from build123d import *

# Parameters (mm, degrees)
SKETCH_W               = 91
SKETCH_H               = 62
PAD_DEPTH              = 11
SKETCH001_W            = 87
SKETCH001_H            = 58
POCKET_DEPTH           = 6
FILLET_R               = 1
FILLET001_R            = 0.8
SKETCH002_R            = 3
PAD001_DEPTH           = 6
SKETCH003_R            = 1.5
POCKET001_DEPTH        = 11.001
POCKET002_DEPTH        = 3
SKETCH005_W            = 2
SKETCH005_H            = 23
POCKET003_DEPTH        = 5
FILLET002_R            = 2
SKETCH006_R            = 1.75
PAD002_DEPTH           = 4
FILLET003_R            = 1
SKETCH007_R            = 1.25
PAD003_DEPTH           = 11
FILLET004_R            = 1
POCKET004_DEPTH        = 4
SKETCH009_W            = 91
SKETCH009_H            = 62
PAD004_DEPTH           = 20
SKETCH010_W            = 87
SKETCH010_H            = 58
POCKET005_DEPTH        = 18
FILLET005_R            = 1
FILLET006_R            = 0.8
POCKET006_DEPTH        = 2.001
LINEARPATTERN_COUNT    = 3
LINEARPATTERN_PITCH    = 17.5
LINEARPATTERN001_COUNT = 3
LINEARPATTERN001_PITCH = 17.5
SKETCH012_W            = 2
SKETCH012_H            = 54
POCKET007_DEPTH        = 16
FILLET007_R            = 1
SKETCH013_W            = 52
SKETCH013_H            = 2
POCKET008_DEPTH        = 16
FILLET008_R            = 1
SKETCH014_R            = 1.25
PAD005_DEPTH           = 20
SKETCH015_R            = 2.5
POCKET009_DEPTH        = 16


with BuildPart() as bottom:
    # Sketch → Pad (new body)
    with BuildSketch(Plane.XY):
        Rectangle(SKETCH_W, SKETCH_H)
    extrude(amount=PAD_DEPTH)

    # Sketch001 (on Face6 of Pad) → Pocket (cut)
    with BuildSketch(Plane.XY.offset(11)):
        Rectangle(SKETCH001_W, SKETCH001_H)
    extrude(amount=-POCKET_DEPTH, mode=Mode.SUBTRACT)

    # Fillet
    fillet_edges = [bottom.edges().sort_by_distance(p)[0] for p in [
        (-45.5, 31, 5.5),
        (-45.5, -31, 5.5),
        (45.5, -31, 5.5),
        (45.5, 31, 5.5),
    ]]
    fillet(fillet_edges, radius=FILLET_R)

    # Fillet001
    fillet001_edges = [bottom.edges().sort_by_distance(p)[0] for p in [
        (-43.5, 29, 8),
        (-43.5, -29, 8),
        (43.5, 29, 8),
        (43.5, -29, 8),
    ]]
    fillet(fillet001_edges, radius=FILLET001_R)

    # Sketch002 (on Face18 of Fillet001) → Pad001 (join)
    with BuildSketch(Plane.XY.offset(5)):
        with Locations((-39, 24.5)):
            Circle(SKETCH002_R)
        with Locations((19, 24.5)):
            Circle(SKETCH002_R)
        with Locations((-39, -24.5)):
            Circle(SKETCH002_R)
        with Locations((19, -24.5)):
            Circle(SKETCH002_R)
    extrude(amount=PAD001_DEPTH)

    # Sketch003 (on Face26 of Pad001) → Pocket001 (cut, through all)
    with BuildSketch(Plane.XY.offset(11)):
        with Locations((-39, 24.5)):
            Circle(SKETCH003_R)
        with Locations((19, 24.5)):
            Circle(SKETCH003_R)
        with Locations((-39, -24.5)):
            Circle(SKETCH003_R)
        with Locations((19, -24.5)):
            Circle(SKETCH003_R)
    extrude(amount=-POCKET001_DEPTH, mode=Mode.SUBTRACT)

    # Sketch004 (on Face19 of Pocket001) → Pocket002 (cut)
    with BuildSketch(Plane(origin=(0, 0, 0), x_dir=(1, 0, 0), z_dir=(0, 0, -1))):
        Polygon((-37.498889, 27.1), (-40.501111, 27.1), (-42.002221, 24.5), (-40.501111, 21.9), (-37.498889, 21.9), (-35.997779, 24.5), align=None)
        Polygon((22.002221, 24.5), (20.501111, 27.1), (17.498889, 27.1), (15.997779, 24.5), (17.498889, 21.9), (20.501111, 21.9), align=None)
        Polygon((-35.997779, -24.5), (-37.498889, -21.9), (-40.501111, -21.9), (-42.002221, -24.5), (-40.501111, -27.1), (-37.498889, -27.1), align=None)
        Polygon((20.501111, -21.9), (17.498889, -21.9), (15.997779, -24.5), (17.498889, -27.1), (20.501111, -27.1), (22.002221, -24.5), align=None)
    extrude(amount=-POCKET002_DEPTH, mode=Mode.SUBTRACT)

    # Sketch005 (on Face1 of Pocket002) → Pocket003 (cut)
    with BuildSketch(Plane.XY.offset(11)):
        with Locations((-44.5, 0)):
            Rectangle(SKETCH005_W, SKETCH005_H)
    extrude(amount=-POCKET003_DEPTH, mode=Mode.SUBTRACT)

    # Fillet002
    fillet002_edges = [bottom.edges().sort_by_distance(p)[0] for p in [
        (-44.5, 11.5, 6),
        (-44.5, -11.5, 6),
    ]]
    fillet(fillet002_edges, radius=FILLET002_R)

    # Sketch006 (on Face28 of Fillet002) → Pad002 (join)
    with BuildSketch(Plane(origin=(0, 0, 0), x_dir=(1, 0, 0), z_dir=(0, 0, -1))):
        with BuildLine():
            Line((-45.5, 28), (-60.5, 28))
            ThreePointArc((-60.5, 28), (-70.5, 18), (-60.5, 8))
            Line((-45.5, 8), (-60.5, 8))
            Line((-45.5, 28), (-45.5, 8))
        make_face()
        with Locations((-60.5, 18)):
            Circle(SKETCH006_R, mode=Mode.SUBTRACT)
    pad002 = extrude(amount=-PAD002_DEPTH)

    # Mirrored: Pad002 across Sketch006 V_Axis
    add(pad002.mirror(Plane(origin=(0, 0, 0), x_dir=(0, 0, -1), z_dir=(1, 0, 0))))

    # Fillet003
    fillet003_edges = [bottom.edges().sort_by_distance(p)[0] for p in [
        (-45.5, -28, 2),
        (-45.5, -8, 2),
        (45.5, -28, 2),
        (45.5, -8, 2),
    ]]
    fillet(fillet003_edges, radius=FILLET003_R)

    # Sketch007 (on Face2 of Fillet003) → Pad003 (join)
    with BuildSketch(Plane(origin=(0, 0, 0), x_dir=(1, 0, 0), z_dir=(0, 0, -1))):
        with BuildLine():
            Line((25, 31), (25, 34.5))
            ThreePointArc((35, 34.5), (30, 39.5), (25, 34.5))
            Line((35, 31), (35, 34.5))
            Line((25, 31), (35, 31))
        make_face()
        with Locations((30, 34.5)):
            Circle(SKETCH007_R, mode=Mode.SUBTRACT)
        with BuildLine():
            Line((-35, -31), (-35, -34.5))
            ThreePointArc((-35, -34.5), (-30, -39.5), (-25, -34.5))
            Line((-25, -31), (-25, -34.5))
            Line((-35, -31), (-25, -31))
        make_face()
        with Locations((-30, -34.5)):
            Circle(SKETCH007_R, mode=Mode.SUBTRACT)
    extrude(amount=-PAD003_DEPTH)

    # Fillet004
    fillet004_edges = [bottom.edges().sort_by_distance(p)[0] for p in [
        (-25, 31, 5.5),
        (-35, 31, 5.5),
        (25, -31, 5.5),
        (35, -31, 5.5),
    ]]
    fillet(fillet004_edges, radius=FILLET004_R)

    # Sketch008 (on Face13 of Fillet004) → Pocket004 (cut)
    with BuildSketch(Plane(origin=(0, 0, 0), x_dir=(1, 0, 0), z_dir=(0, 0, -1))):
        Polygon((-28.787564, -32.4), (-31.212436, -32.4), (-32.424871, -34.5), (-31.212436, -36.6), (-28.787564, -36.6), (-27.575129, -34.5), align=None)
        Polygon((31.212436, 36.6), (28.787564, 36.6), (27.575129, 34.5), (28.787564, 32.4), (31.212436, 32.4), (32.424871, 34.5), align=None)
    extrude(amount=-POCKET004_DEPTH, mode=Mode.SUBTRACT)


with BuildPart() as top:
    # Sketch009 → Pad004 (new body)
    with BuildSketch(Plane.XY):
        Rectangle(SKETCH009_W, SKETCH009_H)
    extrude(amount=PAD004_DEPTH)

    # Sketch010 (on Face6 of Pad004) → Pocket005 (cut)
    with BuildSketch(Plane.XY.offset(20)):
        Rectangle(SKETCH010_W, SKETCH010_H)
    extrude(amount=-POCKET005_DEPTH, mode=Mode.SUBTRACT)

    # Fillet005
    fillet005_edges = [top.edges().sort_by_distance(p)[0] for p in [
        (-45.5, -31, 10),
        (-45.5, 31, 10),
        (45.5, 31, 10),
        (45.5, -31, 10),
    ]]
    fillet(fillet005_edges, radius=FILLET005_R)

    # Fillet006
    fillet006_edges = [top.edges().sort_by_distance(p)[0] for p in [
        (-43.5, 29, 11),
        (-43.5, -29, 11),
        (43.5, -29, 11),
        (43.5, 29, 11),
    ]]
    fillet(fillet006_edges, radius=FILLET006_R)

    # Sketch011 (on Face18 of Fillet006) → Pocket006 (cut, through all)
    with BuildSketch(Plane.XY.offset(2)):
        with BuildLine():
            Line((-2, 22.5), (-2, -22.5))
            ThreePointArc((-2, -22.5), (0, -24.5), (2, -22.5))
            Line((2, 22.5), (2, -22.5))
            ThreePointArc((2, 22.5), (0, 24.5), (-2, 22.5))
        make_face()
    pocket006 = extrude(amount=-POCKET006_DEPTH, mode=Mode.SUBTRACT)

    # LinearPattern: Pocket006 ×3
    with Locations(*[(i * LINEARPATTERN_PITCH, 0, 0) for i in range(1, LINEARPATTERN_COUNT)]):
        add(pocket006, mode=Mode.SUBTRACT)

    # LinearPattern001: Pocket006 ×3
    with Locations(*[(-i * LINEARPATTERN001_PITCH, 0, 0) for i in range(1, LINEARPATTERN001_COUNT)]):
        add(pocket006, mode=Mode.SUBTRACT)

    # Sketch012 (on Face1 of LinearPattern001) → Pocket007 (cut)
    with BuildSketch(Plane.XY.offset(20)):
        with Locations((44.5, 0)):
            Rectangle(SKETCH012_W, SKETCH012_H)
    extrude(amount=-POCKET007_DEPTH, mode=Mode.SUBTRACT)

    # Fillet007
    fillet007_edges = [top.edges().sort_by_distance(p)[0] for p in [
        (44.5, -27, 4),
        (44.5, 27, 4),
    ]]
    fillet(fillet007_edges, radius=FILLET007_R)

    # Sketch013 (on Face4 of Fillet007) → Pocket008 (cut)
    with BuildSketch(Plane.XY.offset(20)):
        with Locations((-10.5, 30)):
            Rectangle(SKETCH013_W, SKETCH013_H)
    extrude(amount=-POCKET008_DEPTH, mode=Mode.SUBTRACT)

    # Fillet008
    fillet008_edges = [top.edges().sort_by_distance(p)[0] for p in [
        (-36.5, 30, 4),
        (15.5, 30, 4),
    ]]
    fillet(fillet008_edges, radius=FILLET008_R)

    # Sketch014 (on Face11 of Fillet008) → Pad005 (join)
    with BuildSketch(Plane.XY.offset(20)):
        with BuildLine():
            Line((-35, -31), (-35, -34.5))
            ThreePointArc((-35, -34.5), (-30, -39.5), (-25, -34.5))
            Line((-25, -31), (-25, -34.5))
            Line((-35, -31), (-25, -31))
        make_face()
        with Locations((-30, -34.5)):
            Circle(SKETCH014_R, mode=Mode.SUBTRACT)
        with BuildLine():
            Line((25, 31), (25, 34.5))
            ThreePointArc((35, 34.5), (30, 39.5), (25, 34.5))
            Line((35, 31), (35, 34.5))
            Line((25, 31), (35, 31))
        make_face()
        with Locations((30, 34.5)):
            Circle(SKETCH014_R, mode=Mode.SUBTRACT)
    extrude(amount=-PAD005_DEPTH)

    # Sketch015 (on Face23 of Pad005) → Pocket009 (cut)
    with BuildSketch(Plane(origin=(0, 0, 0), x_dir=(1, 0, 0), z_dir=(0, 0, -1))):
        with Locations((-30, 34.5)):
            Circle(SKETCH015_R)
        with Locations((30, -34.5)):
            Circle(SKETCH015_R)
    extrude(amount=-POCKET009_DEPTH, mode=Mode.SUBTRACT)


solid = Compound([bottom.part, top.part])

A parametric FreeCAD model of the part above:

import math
import FreeCAD as App
import Part
import Sketcher
Q = App.Units.Quantity


def edges_at(feature, points):
    """Names of the edges that pass closest to the given points."""
    edges = feature.Shape.Edges
    near = lambda p: min(range(len(edges)), key=lambda i: edges[i].distToShape(Part.Vertex(*p))[0])
    return sorted({f"Edge{near(p) + 1}" for p in points})


def add_polygon(sketch, points):
    """Adds a closed chain of lines whose ends are joined by coincident constraints."""
    first, n = sketch.GeometryCount, len(points)
    for a, b in zip(points, points[1:] + points[:1]):
        sketch.addGeometry(Part.LineSegment(App.Vector(*a, 0), App.Vector(*b, 0)), False)
    for i in range(n):
        sketch.addConstraint(Sketcher.Constraint("Coincident", first + i, 2, first + (i + 1) % n, 1))

doc = App.newDocument("Part")
body = doc.addObject("PartDesign::Body", "Body")

# Sketch on XY plane
sketch1 = doc.addObject("Sketcher::SketchObject", "Sketch")
body.addObject(sketch1)
sketch1.AttachmentSupport = (doc.XY_Plane, [""])
sketch1.MapMode = "FlatFace"
add_polygon(sketch1, [(-46, 31), (-46, -31), (46, -31), (46, 31)])  # lines 0-3
sketch1.addConstraint([
    Sketcher.Constraint("Vertical", 0),
    Sketcher.Constraint("Horizontal", 1),
    Sketcher.Constraint("Vertical", 2),
    Sketcher.Constraint("Horizontal", 3),
    Sketcher.Constraint("Symmetric", 0, 2, 2, 2, -1, 1),
    Sketcher.Constraint("DistanceX", 1, 1, 1, 2, 91.0),
    Sketcher.Constraint("DistanceY", 0, 2, 0, 1, 62.0),
])
pad1 = doc.addObject("PartDesign::Pad", "Pad")
body.addObject(pad1)
pad1.Profile = sketch1
pad1.Length = 11

# Sketch on XY plane
sketch2 = doc.addObject("Sketcher::SketchObject", "Sketch001")
body.addObject(sketch2)
sketch2.AttachmentSupport = (doc.XY_Plane, [""])
sketch2.MapMode = "FlatFace"
sketch2.AttachmentOffset = App.Placement(App.Vector(0, 0, 11), App.Rotation())
add_polygon(sketch2, [(-44, 29), (-44, -29), (44, -29), (44, 29)])  # lines 0-3
sketch2.addConstraint([
    Sketcher.Constraint("Vertical", 0),
    Sketcher.Constraint("Horizontal", 1),
    Sketcher.Constraint("Vertical", 2),
    Sketcher.Constraint("Horizontal", 3),
    Sketcher.Constraint("Symmetric", 0, 2, 2, 2, -1, 1),
    Sketcher.Constraint("DistanceX", 1, 1, 1, 2, 87.0),
    Sketcher.Constraint("DistanceY", 0, 2, 0, 1, 58.0),
])
pocket1 = doc.addObject("PartDesign::Pocket", "Pocket")
body.addObject(pocket1)
pocket1.Profile = sketch2
pocket1.Length = 6
doc.recompute()

fillet = doc.addObject("PartDesign::Fillet", "Fillet")
body.addObject(fillet)
fillet.Base = (pocket1, edges_at(pocket1, [
    (-45.5, 31, 5.5),
    (-45.5, -31, 5.5),
    (45.5, -31, 5.5),
    (45.5, 31, 5.5),
]))
fillet.Radius = 1
doc.recompute()

fillet2 = doc.addObject("PartDesign::Fillet", "Fillet001")
body.addObject(fillet2)
fillet2.Base = (fillet, edges_at(fillet, [
    (-43.5, 29, 8),
    (-43.5, -29, 8),
    (43.5, 29, 8),
    (43.5, -29, 8),
]))
fillet2.Radius = 0.8

# Sketch on XY plane
sketch3 = doc.addObject("Sketcher::SketchObject", "Sketch002")
body.addObject(sketch3)
sketch3.AttachmentSupport = (doc.XY_Plane, [""])
sketch3.MapMode = "FlatFace"
sketch3.AttachmentOffset = App.Placement(App.Vector(0, 0, 5), App.Rotation())
sketch3.addGeometry([
    Part.Circle(App.Vector(-39, 24.5, 0), App.Vector(0, 0, 1), 3),
    Part.Circle(App.Vector(19, 24.5, 0), App.Vector(0, 0, 1), 3),
    Part.Circle(App.Vector(-39, -24.5, 0), App.Vector(0, 0, 1), 3),
    Part.Circle(App.Vector(19, -24.5, 0), App.Vector(0, 0, 1), 3),
], False)
sketch3.addConstraint([
    Sketcher.Constraint("Equal", 0, 1),
    Sketcher.Constraint("Equal", 1, 2),
    Sketcher.Constraint("Equal", 2, 3),
    Sketcher.Constraint("Symmetric", 0, 3, 2, 3, -1),
    Sketcher.Constraint("Symmetric", 1, 3, 3, 3, -1),
    Sketcher.Constraint("Horizontal", 0, 3, 1, 3),
    Sketcher.Constraint("Diameter", 0, 6.0),
    Sketcher.Constraint("DistanceX", 0, 3, -1, 1, 39.0),
    Sketcher.Constraint("DistanceX", -1, 1, 1, 3, 19.0),
    Sketcher.Constraint("DistanceY", 2, 3, 0, 3, 49.0),
])
pad2 = doc.addObject("PartDesign::Pad", "Pad001")
body.addObject(pad2)
pad2.Profile = sketch3
pad2.Length = 6

# Sketch on XY plane
sketch4 = doc.addObject("Sketcher::SketchObject", "Sketch003")
body.addObject(sketch4)
sketch4.AttachmentSupport = (doc.XY_Plane, [""])
sketch4.MapMode = "FlatFace"
sketch4.AttachmentOffset = App.Placement(App.Vector(0, 0, 11), App.Rotation())
sketch4.addGeometry([
    Part.Circle(App.Vector(-39, 24.5, 0), App.Vector(0, 0, 1), 1.5),
    Part.Circle(App.Vector(19, 24.5, 0), App.Vector(0, 0, 1), 1.5),
    Part.Circle(App.Vector(-39, -24.5, 0), App.Vector(0, 0, 1), 1.5),
    Part.Circle(App.Vector(19, -24.5, 0), App.Vector(0, 0, 1), 1.5),
], False)
sketch4.addConstraint([
    Sketcher.Constraint("Equal", 0, 1),
    Sketcher.Constraint("Equal", 1, 2),
    Sketcher.Constraint("Equal", 2, 3),
    Sketcher.Constraint("Symmetric", 0, 3, 2, 3, -1),
    Sketcher.Constraint("Symmetric", 1, 3, 3, 3, -1),
    Sketcher.Constraint("Horizontal", 0, 3, 1, 3),
    Sketcher.Constraint("Diameter", 0, 3.0),
    Sketcher.Constraint("DistanceX", 0, 3, -1, 1, 39.0),
    Sketcher.Constraint("DistanceX", -1, 1, 1, 3, 19.0),
    Sketcher.Constraint("DistanceY", 2, 3, 0, 3, 49.0),
])
pocket2 = doc.addObject("PartDesign::Pocket", "Pocket001")
body.addObject(pocket2)
pocket2.Profile = sketch4
pocket2.Type = "ThroughAll"

# Sketch on XY plane
sketch5 = doc.addObject("Sketcher::SketchObject", "Sketch004")
body.addObject(sketch5)
sketch5.AttachmentSupport = (doc.XY_Plane, [""])
sketch5.MapMode = "FlatFace"
add_polygon(sketch5, [(-37.5, -27.1), (-40.5, -27.1), (-42, -24.5), (-40.5, -21.9), (-37.5, -21.9), (-36, -24.5)])  # lines 0-5
add_polygon(sketch5, [(22, -24.5), (20.5, -27.1), (17.5, -27.1), (16, -24.5), (17.5, -21.9), (20.5, -21.9)])  # lines 6-11
add_polygon(sketch5, [(-36, 24.5), (-37.5, 21.9), (-40.5, 21.9), (-42, 24.5), (-40.5, 27.1), (-37.5, 27.1)])  # lines 12-17
add_polygon(sketch5, [(20.5, 21.9), (17.5, 21.9), (16, 24.5), (17.5, 27.1), (20.5, 27.1), (22, 24.5)])  # lines 18-23
sketch5.addConstraint([
    Sketcher.Constraint("Horizontal", 0),
    Sketcher.Constraint("Horizontal", 3),
    Sketcher.Constraint("Horizontal", 7),
    Sketcher.Constraint("Horizontal", 10),
    Sketcher.Constraint("Horizontal", 13),
    Sketcher.Constraint("Horizontal", 16),
    Sketcher.Constraint("Horizontal", 18),
    Sketcher.Constraint("Horizontal", 21),
    Sketcher.Constraint("Symmetric", 3, 2, 12, 2, -1),
    Sketcher.Constraint("Symmetric", 1, 2, 14, 2, -1),
    Sketcher.Constraint("Symmetric", 0, 2, 15, 2, -1),
    Sketcher.Constraint("Symmetric", 4, 2, 17, 2, -1),
    Sketcher.Constraint("Symmetric", 9, 2, 18, 2, -1),
    Sketcher.Constraint("Symmetric", 8, 2, 19, 2, -1),
    Sketcher.Constraint("Symmetric", 7, 2, 20, 2, -1),
    Sketcher.Constraint("Symmetric", 11, 2, 22, 2, -1),
    Sketcher.Constraint("Parallel", 1, 4),
    Sketcher.Constraint("Parallel", 2, 5),
    Sketcher.Constraint("Parallel", 5, 6),
    Sketcher.Constraint("Parallel", 4, 8),
    Sketcher.Constraint("Parallel", 6, 9),
    Sketcher.Constraint("Parallel", 8, 11),
    Sketcher.Constraint("Parallel", 9, 12),
    Sketcher.Constraint("Parallel", 11, 14),
    Sketcher.Constraint("Parallel", 14, 17),
    Sketcher.Constraint("Parallel", 19, 22),
    Sketcher.Constraint("Parallel", 20, 23),
    Sketcher.Constraint("Horizontal", 1, 2, 4, 2),
    Sketcher.Constraint("Horizontal", 5, 2, 6, 2),
    Sketcher.Constraint("Horizontal", 4, 2, 8, 2),
    Sketcher.Constraint("Horizontal", 3, 2, 9, 2),
    Sketcher.Constraint("Horizontal", 8, 2, 11, 2),
    Sketcher.Constraint("Vertical", 0, 2, 2, 2),
    Sketcher.Constraint("Equal", 3, 7),
    Sketcher.Constraint("Angle", 1, Q("119.999988 deg")),
    Sketcher.Constraint("DistanceX", 5, 2, 6, 2, 58.0),
    Sketcher.Constraint("DistanceY", 5, 2, 12, 2, 49.0),
    Sketcher.Constraint("DistanceY", 0, 2, -1, 1, 27.1),
    Sketcher.Constraint("DistanceX", 0, 2, 0, 1, 3.002222),
    Sketcher.Constraint("DistanceX", 0, 2, -1, 1, 40.501111),
])
pocket3 = doc.addObject("PartDesign::Pocket", "Pocket002")
body.addObject(pocket3)
pocket3.Profile = sketch5
pocket3.Length = 3
pocket3.Reversed = True

# Sketch on XY plane
sketch6 = doc.addObject("Sketcher::SketchObject", "Sketch005")
body.addObject(sketch6)
sketch6.AttachmentSupport = (doc.XY_Plane, [""])
sketch6.MapMode = "FlatFace"
sketch6.AttachmentOffset = App.Placement(App.Vector(0, 0, 11), App.Rotation())
add_polygon(sketch6, [(-45.5, 11.5), (-45.5, -11.5), (-43.5, -11.5), (-43.5, 11.5)])  # lines 0-3
sketch6.addConstraint([
    Sketcher.Constraint("Vertical", 0),
    Sketcher.Constraint("Horizontal", 1),
    Sketcher.Constraint("Vertical", 2),
    Sketcher.Constraint("Horizontal", 3),
    Sketcher.Constraint("DistanceX", 1, 1, 1, 2, 2.0),
    Sketcher.Constraint("DistanceY", 0, 2, 0, 1, 23.0),
    Sketcher.Constraint("DistanceX", 0, 2, -1, 1, 45.5),
    Sketcher.Constraint("DistanceY", 0, 2, -1, 1, 11.5),
])
pocket4 = doc.addObject("PartDesign::Pocket", "Pocket003")
body.addObject(pocket4)
pocket4.Profile = sketch6
pocket4.Length = 5
doc.recompute()

fillet3 = doc.addObject("PartDesign::Fillet", "Fillet002")
body.addObject(fillet3)
fillet3.Base = (pocket4, edges_at(pocket4, [(-44.5, 11.5, 6), (-44.5, -11.5, 6)]))
fillet3.Radius = 2

# Sketch on XY plane
sketch7 = doc.addObject("Sketcher::SketchObject", "Sketch006")
body.addObject(sketch7)
sketch7.AttachmentSupport = (doc.XY_Plane, [""])
sketch7.MapMode = "FlatFace"
sketch7.addGeometry([
    Part.LineSegment(App.Vector(-45.5, -28, 0), App.Vector(-60.5, -28, 0)),  # 0
    Part.ArcOfCircle(Part.Circle(App.Vector(-60.5, -18, 0), App.Vector(0, 0, 1), 10), math.radians(90), math.radians(270)),  # 1
    Part.LineSegment(App.Vector(-60.5, -8, 0), App.Vector(-45.5, -8, 0)),  # 2
    Part.LineSegment(App.Vector(-45.5, -8, 0), App.Vector(-45.5, -28, 0)),  # 3
    Part.Circle(App.Vector(-60.5, -18, 0), App.Vector(0, 0, 1), 1.8),  # 4
], False)
sketch7.addConstraint([
    Sketcher.Constraint("Tangent", 0, 2, 1, 2),
    Sketcher.Constraint("Tangent", 1, 1, 2, 1),
    Sketcher.Constraint("Coincident", 2, 2, 3, 1),
    Sketcher.Constraint("Coincident", 3, 2, 0, 1),
    Sketcher.Constraint("Horizontal", 0),
    Sketcher.Constraint("Horizontal", 2),
    Sketcher.Constraint("Vertical", 3),
    Sketcher.Constraint("Coincident", 4, 3, 1, 3),
    Sketcher.Constraint("Radius", 1, 10.0),
    Sketcher.Constraint("Diameter", 4, 3.5),
    Sketcher.Constraint("DistanceX", 0, 2, 0, 1, 15.0),
    Sketcher.Constraint("DistanceY", 1, 3, -1, 1, 18.0),
    Sketcher.Constraint("DistanceX", 1, 3, -1, 1, 60.5),
])
pad3 = doc.addObject("PartDesign::Pad", "Pad002")
body.addObject(pad3)
pad3.Profile = sketch7
pad3.Length = 4
doc.recompute()

mirrored = doc.addObject("PartDesign::Mirrored", "Mirrored")
body.addObject(mirrored)
mirrored.Originals = [pad3]
mirrored.MirrorPlane = (doc.YZ_Plane, [""])
body.Tip = mirrored
doc.recompute()

fillet4 = doc.addObject("PartDesign::Fillet", "Fillet003")
body.addObject(fillet4)
fillet4.Base = (mirrored, edges_at(mirrored, [
    (-45.5, -28, 2),
    (-45.5, -8, 2),
    (45.5, -28, 2),
    (45.5, -8, 2),
]))
fillet4.Radius = 1

# Sketch on XY plane
sketch8 = doc.addObject("Sketcher::SketchObject", "Sketch007")
body.addObject(sketch8)
sketch8.AttachmentSupport = (doc.XY_Plane, [""])
sketch8.MapMode = "FlatFace"
sketch8.addGeometry([
    Part.LineSegment(App.Vector(25, -34.5, 0), App.Vector(25, -31, 0)),  # 0
    Part.LineSegment(App.Vector(25, -31, 0), App.Vector(35, -31, 0)),  # 1
    Part.LineSegment(App.Vector(35, -31, 0), App.Vector(35, -34.5, 0)),  # 2
    Part.ArcOfCircle(Part.Circle(App.Vector(30, -34.5, 0), App.Vector(0, 0, 1), 5), math.radians(180), math.radians(360)),  # 3
    Part.Circle(App.Vector(30, -34.5, 0), App.Vector(0, 0, 1), 1.2),  # 4
    Part.LineSegment(App.Vector(-35, 31, 0), App.Vector(-35, 34.5, 0)),  # 5
    Part.ArcOfCircle(Part.Circle(App.Vector(-30, 34.5, 0), App.Vector(0, 0, 1), 5), math.radians(0), math.radians(180)),  # 6
    Part.LineSegment(App.Vector(-25, 34.5, 0), App.Vector(-25, 31, 0)),  # 7
    Part.LineSegment(App.Vector(-25, 31, 0), App.Vector(-35, 31, 0)),  # 8
    Part.Circle(App.Vector(-30, 34.5, 0), App.Vector(0, 0, 1), 1.2),  # 9
], False)
sketch8.addConstraint([
    Sketcher.Constraint("Coincident", 0, 2, 1, 1),
    Sketcher.Constraint("Coincident", 1, 2, 2, 1),
    Sketcher.Constraint("Tangent", 2, 2, 3, 2),
    Sketcher.Constraint("Tangent", 3, 1, 0, 1),
    Sketcher.Constraint("Tangent", 5, 2, 6, 2),
    Sketcher.Constraint("Tangent", 6, 1, 7, 1),
    Sketcher.Constraint("Coincident", 7, 2, 8, 1),
    Sketcher.Constraint("Coincident", 8, 2, 5, 1),
    Sketcher.Constraint("Vertical", 0),
    Sketcher.Constraint("Horizontal", 1),
    Sketcher.Constraint("Vertical", 2),
    Sketcher.Constraint("Vertical", 5),
    Sketcher.Constraint("Vertical", 7),
    Sketcher.Constraint("Horizontal", 8),
    Sketcher.Constraint("Coincident", 4, 3, 3, 3),
    Sketcher.Constraint("Coincident", 9, 3, 6, 3),
    Sketcher.Constraint("Equal", 3, 6),
    Sketcher.Constraint("Equal", 4, 9),
    Sketcher.Constraint("Symmetric", 3, 3, 6, 3, -1, 1),
    Sketcher.Constraint("Equal", 2, 5),
    Sketcher.Constraint("Radius", 3, 5.0),
    Sketcher.Constraint("Diameter", 4, 2.5),
    Sketcher.Constraint("DistanceY", 0, 1, 0, 2, 3.5),
    Sketcher.Constraint("DistanceX", -1, 1, 3, 3, 30.0),
    Sketcher.Constraint("DistanceY", 0, 2, -1, 1, 31.0),
])
pad4 = doc.addObject("PartDesign::Pad", "Pad003")
body.addObject(pad4)
pad4.Profile = sketch8
pad4.Length = 11
doc.recompute()

fillet5 = doc.addObject("PartDesign::Fillet", "Fillet004")
body.addObject(fillet5)
fillet5.Base = (pad4, edges_at(pad4, [
    (-25, 31, 5.5),
    (-35, 31, 5.5),
    (25, -31, 5.5),
    (35, -31, 5.5),
]))
fillet5.Radius = 1

# Sketch on XY plane
sketch9 = doc.addObject("Sketcher::SketchObject", "Sketch008")
body.addObject(sketch9)
sketch9.AttachmentSupport = (doc.XY_Plane, [""])
sketch9.MapMode = "FlatFace"
add_polygon(sketch9, [(-28.8, 32.4), (-31.2, 32.4), (-32.4, 34.5), (-31.2, 36.6), (-28.8, 36.6), (-27.6, 34.5)])  # lines 0-5
add_polygon(sketch9, [(31.2, -36.6), (28.8, -36.6), (27.6, -34.5), (28.8, -32.4), (31.2, -32.4), (32.4, -34.5)])  # lines 6-11
sketch9.addConstraint([
    Sketcher.Constraint("Horizontal", 0),
    Sketcher.Constraint("Horizontal", 3),
    Sketcher.Constraint("Horizontal", 6),
    Sketcher.Constraint("Horizontal", 9),
    Sketcher.Constraint("Symmetric", 3, 2, 6, 2, -1, 1),
    Sketcher.Constraint("Symmetric", 4, 2, 7, 2, -1, 1),
    Sketcher.Constraint("Symmetric", 5, 2, 8, 2, -1, 1),
    Sketcher.Constraint("Symmetric", 1, 2, 10, 2, -1, 1),
    Sketcher.Constraint("Parallel", 1, 4),
    Sketcher.Constraint("Parallel", 2, 5),
    Sketcher.Constraint("Parallel", 7, 10),
    Sketcher.Constraint("Parallel", 8, 11),
    Sketcher.Constraint("Horizontal", 1, 2, 4, 2),
    Sketcher.Constraint("Vertical", 0, 2, 2, 2),
    Sketcher.Constraint("Vertical", 3, 2, 5, 2),
    Sketcher.Constraint("Angle", 1, Q("119.999988 deg")),
    Sketcher.Constraint("DistanceY", 6, 2, 5, 2, 69.0),
    Sketcher.Constraint("DistanceX", 0, 2, 6, 2, 60.0),
    Sketcher.Constraint("DistanceY", -1, 1, 0, 2, 32.4),
    Sketcher.Constraint("DistanceX", 0, 2, 0, 1, 2.424872),
])
pocket5 = doc.addObject("PartDesign::Pocket", "Pocket004")
body.addObject(pocket5)
pocket5.Profile = sketch9
pocket5.Length = 4
pocket5.Reversed = True
body2 = doc.addObject("PartDesign::Body", "Body001")

# Sketch on XY plane
sketch10 = doc.addObject("Sketcher::SketchObject", "Sketch009")
body2.addObject(sketch10)
sketch10.AttachmentSupport = (doc.getObject("XY_Plane001"), [""])
sketch10.MapMode = "FlatFace"
add_polygon(sketch10, [(-46, 31), (-46, -31), (46, -31), (46, 31)])  # lines 0-3
sketch10.addConstraint([
    Sketcher.Constraint("Vertical", 0),
    Sketcher.Constraint("Horizontal", 1),
    Sketcher.Constraint("Vertical", 2),
    Sketcher.Constraint("Horizontal", 3),
    Sketcher.Constraint("Symmetric", 0, 2, 2, 2, -1, 1),
    Sketcher.Constraint("DistanceX", 1, 1, 1, 2, 91.0),
    Sketcher.Constraint("DistanceY", 0, 2, 0, 1, 62.0),
])
pad5 = doc.addObject("PartDesign::Pad", "Pad004")
body2.addObject(pad5)
pad5.Profile = sketch10
pad5.Length = 20

# Sketch on XY plane
sketch11 = doc.addObject("Sketcher::SketchObject", "Sketch010")
body2.addObject(sketch11)
sketch11.AttachmentSupport = (doc.getObject("XY_Plane001"), [""])
sketch11.MapMode = "FlatFace"
sketch11.AttachmentOffset = App.Placement(App.Vector(0, 0, 20), App.Rotation())
add_polygon(sketch11, [(-44, 29), (-44, -29), (44, -29), (44, 29)])  # lines 0-3
sketch11.addConstraint([
    Sketcher.Constraint("Vertical", 0),
    Sketcher.Constraint("Horizontal", 1),
    Sketcher.Constraint("Vertical", 2),
    Sketcher.Constraint("Horizontal", 3),
    Sketcher.Constraint("Symmetric", 0, 2, 2, 2, -1, 1),
    Sketcher.Constraint("DistanceX", 1, 1, 1, 2, 87.0),
    Sketcher.Constraint("DistanceY", 0, 2, 0, 1, 58.0),
])
pocket6 = doc.addObject("PartDesign::Pocket", "Pocket005")
body2.addObject(pocket6)
pocket6.Profile = sketch11
pocket6.Length = 18
doc.recompute()

fillet6 = doc.addObject("PartDesign::Fillet", "Fillet005")
body2.addObject(fillet6)
fillet6.Base = (pocket6, edges_at(pocket6, [
    (-45.5, -31, 10),
    (-45.5, 31, 10),
    (45.5, 31, 10),
    (45.5, -31, 10),
]))
fillet6.Radius = 1
doc.recompute()

fillet7 = doc.addObject("PartDesign::Fillet", "Fillet006")
body2.addObject(fillet7)
fillet7.Base = (fillet6, edges_at(fillet6, [
    (-43.5, 29, 11),
    (-43.5, -29, 11),
    (43.5, -29, 11),
    (43.5, 29, 11),
]))
fillet7.Radius = 0.8

# Sketch on XY plane
sketch12 = doc.addObject("Sketcher::SketchObject", "Sketch011")
body2.addObject(sketch12)
sketch12.AttachmentSupport = (doc.getObject("XY_Plane001"), [""])
sketch12.MapMode = "FlatFace"
sketch12.AttachmentOffset = App.Placement(App.Vector(0, 0, 2), App.Rotation())
sketch12.addGeometry([
    Part.LineSegment(App.Vector(-2, 22.5, 0), App.Vector(-2, -22.5, 0)),
    Part.ArcOfCircle(Part.Circle(App.Vector(0, -22.5, 0), App.Vector(0, 0, 1), 2), math.radians(180), math.radians(360)),
    Part.LineSegment(App.Vector(2, -22.5, 0), App.Vector(2, 22.5, 0)),
    Part.ArcOfCircle(Part.Circle(App.Vector(0, 22.5, 0), App.Vector(0, 0, 1), 2), math.radians(0), math.radians(180)),
], False)
sketch12.addConstraint([
    Sketcher.Constraint("Tangent", 0, 2, 1, 1),
    Sketcher.Constraint("Tangent", 1, 2, 2, 1),
    Sketcher.Constraint("Tangent", 2, 2, 3, 1),
    Sketcher.Constraint("Tangent", 3, 2, 0, 1),
    Sketcher.Constraint("Vertical", 0),
    Sketcher.Constraint("Vertical", 2),
    Sketcher.Constraint("Symmetric", 1, 3, 3, 3, -1, 1),
    Sketcher.Constraint("Radius", 1, 2.0),
    Sketcher.Constraint("DistanceY", 0, 2, 0, 1, 45.0),
])
pocket7 = doc.addObject("PartDesign::Pocket", "Pocket006")
body2.addObject(pocket7)
pocket7.Profile = sketch12
pocket7.Type = "ThroughAll"
doc.recompute()

linearpattern = doc.addObject("PartDesign::LinearPattern", "LinearPattern")
body2.addObject(linearpattern)
linearpattern.Originals = [pocket7]
linearpattern.Direction = (doc.getObject("X_Axis001"), [""])
linearpattern.Mode = "offset"
linearpattern.Offset = 17.5
linearpattern.Occurrences = 3
body2.Tip = linearpattern
doc.recompute()

linearpattern2 = doc.addObject("PartDesign::LinearPattern", "LinearPattern001")
body2.addObject(linearpattern2)
linearpattern2.Originals = [pocket7]
linearpattern2.Direction = (doc.getObject("X_Axis001"), [""])
linearpattern2.Mode = "offset"
linearpattern2.Offset = 17.5
linearpattern2.Occurrences = 3
linearpattern2.Reversed = True
body2.Tip = linearpattern2

# Sketch on XY plane
sketch13 = doc.addObject("Sketcher::SketchObject", "Sketch012")
body2.addObject(sketch13)
sketch13.AttachmentSupport = (doc.getObject("XY_Plane001"), [""])
sketch13.MapMode = "FlatFace"
sketch13.AttachmentOffset = App.Placement(App.Vector(0, 0, 20), App.Rotation())
add_polygon(sketch13, [(43.5, 27), (43.5, -27), (45.5, -27), (45.5, 27)])  # lines 0-3
sketch13.addConstraint([
    Sketcher.Constraint("Vertical", 0),
    Sketcher.Constraint("Horizontal", 1),
    Sketcher.Constraint("Vertical", 2),
    Sketcher.Constraint("Horizontal", 3),
    Sketcher.Constraint("DistanceX", 1, 1, 1, 2, 2.0),
    Sketcher.Constraint("DistanceY", 0, 2, 0, 1, 54.0),
    Sketcher.Constraint("DistanceY", 0, 2, -1, 1, 27.0),
    Sketcher.Constraint("DistanceX", -1, 1, 0, 2, 43.5),
])
pocket8 = doc.addObject("PartDesign::Pocket", "Pocket007")
body2.addObject(pocket8)
pocket8.Profile = sketch13
pocket8.Length = 16
doc.recompute()

fillet8 = doc.addObject("PartDesign::Fillet", "Fillet007")
body2.addObject(fillet8)
fillet8.Base = (pocket8, edges_at(pocket8, [(44.5, -27, 4), (44.5, 27, 4)]))
fillet8.Radius = 1

# Sketch on XY plane
sketch14 = doc.addObject("Sketcher::SketchObject", "Sketch013")
body2.addObject(sketch14)
sketch14.AttachmentSupport = (doc.getObject("XY_Plane001"), [""])
sketch14.MapMode = "FlatFace"
sketch14.AttachmentOffset = App.Placement(App.Vector(0, 0, 20), App.Rotation())
add_polygon(sketch14, [(-36.5, 31), (-36.5, 29), (15.5, 29), (15.5, 31)])  # lines 0-3
sketch14.addConstraint([
    Sketcher.Constraint("Vertical", 0),
    Sketcher.Constraint("Horizontal", 1),
    Sketcher.Constraint("Vertical", 2),
    Sketcher.Constraint("Horizontal", 3),
    Sketcher.Constraint("DistanceX", 1, 1, 1, 2, 52.0),
    Sketcher.Constraint("DistanceY", 0, 2, 0, 1, 2.0),
    Sketcher.Constraint("DistanceY", -1, 1, 0, 2, 29.0),
    Sketcher.Constraint("DistanceX", 0, 2, -1, 1, 36.5),
])
pocket9 = doc.addObject("PartDesign::Pocket", "Pocket008")
body2.addObject(pocket9)
pocket9.Profile = sketch14
pocket9.Length = 16
doc.recompute()

fillet9 = doc.addObject("PartDesign::Fillet", "Fillet008")
body2.addObject(fillet9)
fillet9.Base = (pocket9, edges_at(pocket9, [(-36.5, 30, 4), (15.5, 30, 4)]))
fillet9.Radius = 1

# Sketch on XY plane
sketch15 = doc.addObject("Sketcher::SketchObject", "Sketch014")
body2.addObject(sketch15)
sketch15.AttachmentSupport = (doc.getObject("XY_Plane001"), [""])
sketch15.MapMode = "FlatFace"
sketch15.AttachmentOffset = App.Placement(App.Vector(0, 0, 20), App.Rotation())
sketch15.addGeometry([
    Part.LineSegment(App.Vector(-35, -31, 0), App.Vector(-35, -34.5, 0)),  # 0
    Part.ArcOfCircle(Part.Circle(App.Vector(-30, -34.5, 0), App.Vector(0, 0, 1), 5), math.radians(180), math.radians(360)),  # 1
    Part.LineSegment(App.Vector(-25, -34.5, 0), App.Vector(-25, -31, 0)),  # 2
    Part.LineSegment(App.Vector(-25, -31, 0), App.Vector(-35, -31, 0)),  # 3
    Part.Circle(App.Vector(-30, -34.5, 0), App.Vector(0, 0, 1), 1.2),  # 4
    Part.LineSegment(App.Vector(25, 34.5, 0), App.Vector(25, 31, 0)),  # 5
    Part.LineSegment(App.Vector(25, 31, 0), App.Vector(35, 31, 0)),  # 6
    Part.LineSegment(App.Vector(35, 31, 0), App.Vector(35, 34.5, 0)),  # 7
    Part.ArcOfCircle(Part.Circle(App.Vector(30, 34.5, 0), App.Vector(0, 0, 1), 5), math.radians(0), math.radians(180)),  # 8
    Part.Circle(App.Vector(30, 34.5, 0), App.Vector(0, 0, 1), 1.2),  # 9
], False)
sketch15.addConstraint([
    Sketcher.Constraint("Tangent", 0, 2, 1, 1),
    Sketcher.Constraint("Tangent", 1, 2, 2, 1),
    Sketcher.Constraint("Coincident", 2, 2, 3, 1),
    Sketcher.Constraint("Coincident", 3, 2, 0, 1),
    Sketcher.Constraint("Coincident", 5, 2, 6, 1),
    Sketcher.Constraint("Coincident", 6, 2, 7, 1),
    Sketcher.Constraint("Tangent", 7, 2, 8, 1),
    Sketcher.Constraint("Tangent", 8, 2, 5, 1),
    Sketcher.Constraint("Vertical", 0),
    Sketcher.Constraint("Vertical", 2),
    Sketcher.Constraint("Horizontal", 3),
    Sketcher.Constraint("Vertical", 5),
    Sketcher.Constraint("Horizontal", 6),
    Sketcher.Constraint("Vertical", 7),
    Sketcher.Constraint("Coincident", 4, 3, 1, 3),
    Sketcher.Constraint("Coincident", 9, 3, 8, 3),
    Sketcher.Constraint("Equal", 1, 8),
    Sketcher.Constraint("Equal", 4, 9),
    Sketcher.Constraint("Symmetric", 1, 3, 8, 3, -1, 1),
    Sketcher.Constraint("Equal", 2, 5),
    Sketcher.Constraint("Radius", 1, 5.0),
    Sketcher.Constraint("Diameter", 4, 2.5),
    Sketcher.Constraint("DistanceY", 0, 2, 0, 1, 3.5),
    Sketcher.Constraint("DistanceX", 1, 3, -1, 1, 30.0),
    Sketcher.Constraint("DistanceY", 2, 2, -1, 1, 31.0),
])
pad6 = doc.addObject("PartDesign::Pad", "Pad005")
body2.addObject(pad6)
pad6.Profile = sketch15
pad6.Length = 20
pad6.Reversed = True

# Sketch on XY plane
sketch16 = doc.addObject("Sketcher::SketchObject", "Sketch015")
body2.addObject(sketch16)
sketch16.AttachmentSupport = (doc.getObject("XY_Plane001"), [""])
sketch16.MapMode = "FlatFace"
sketch16.addGeometry([
    Part.Circle(App.Vector(-30, -34.5, 0), App.Vector(0, 0, 1), 2.5),
    Part.Circle(App.Vector(30, 34.5, 0), App.Vector(0, 0, 1), 2.5),
], False)
sketch16.addConstraint([
    Sketcher.Constraint("Equal", 0, 1),
    Sketcher.Constraint("Symmetric", 0, 3, 1, 3, -1, 1),
    Sketcher.Constraint("Diameter", 0, 5.0),
    Sketcher.Constraint("DistanceX", 0, 3, -1, 1, 30.0),
    Sketcher.Constraint("DistanceY", 0, 3, 1, 3, 69.0),
])
pocket10 = doc.addObject("PartDesign::Pocket", "Pocket009")
body2.addObject(pocket10)
pocket10.Profile = sketch16
pocket10.Length = 16
pocket10.Reversed = True

doc.recompute()
